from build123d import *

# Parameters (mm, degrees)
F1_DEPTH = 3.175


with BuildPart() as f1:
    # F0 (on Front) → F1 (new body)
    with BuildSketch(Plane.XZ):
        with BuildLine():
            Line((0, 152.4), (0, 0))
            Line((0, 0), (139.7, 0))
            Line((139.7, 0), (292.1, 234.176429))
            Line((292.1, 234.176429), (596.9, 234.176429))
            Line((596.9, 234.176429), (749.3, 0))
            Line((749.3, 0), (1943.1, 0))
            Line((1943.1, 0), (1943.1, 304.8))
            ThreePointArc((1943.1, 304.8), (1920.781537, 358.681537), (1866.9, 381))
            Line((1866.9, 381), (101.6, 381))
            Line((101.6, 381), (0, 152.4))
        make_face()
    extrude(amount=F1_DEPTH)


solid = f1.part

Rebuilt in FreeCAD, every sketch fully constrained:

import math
import FreeCAD as App
import Part
import Sketcher

V = App.Vector
Q = App.Units.Quantity

doc = App.newDocument("Part")
body = doc.addObject("PartDesign::Body", "Body")

# Sketch on XZ plane
sketch1 = body.newObject("Sketcher::SketchObject", "Sketch")
sketch1.AttachmentSupport = (doc.getObject("XZ_Plane"), [""])
sketch1.MapMode = "FlatFace"
sketch1.addGeometry([
    Part.LineSegment(V(0, 152, 0), V(0, 0, 0)),  # 0
    Part.LineSegment(V(0, 0, 0), V(140, 0, 0)),  # 1
    Part.LineSegment(V(140, 0, 0), V(292, 234, 0)),  # 2
    Part.LineSegment(V(292, 234, 0), V(597, 234, 0)),  # 3
    Part.LineSegment(V(597, 234, 0), V(749, 0, 0)),  # 4
    Part.LineSegment(V(749, 0, 0), V(1943, 0, 0)),  # 5
    Part.LineSegment(V(1943, 0, 0), V(1943, 305, 0)),  # 6
    Part.ArcOfCircle(Part.Circle(V(1867, 305, 0), V(0, 0, 1), 76), math.radians(0), math.radians(90)),  # 7
    Part.LineSegment(V(1867, 381, 0), V(102, 381, 0)),  # 8
    Part.LineSegment(V(102, 381, 0), V(0, 152, 0)),  # 9
], False)
sketch1.addConstraint([
    Sketcher.Constraint("Coincident", 0, 2, 1, 1),
    Sketcher.Constraint("Coincident", 1, 2, 2, 1),
    Sketcher.Constraint("Coincident", 2, 2, 3, 1),
    Sketcher.Constraint("Coincident", 3, 2, 4, 1),
    Sketcher.Constraint("Coincident", 4, 2, 5, 1),
    Sketcher.Constraint("Coincident", 5, 2, 6, 1),
    Sketcher.Constraint("Tangent", 6, 2, 7, 1),
    Sketcher.Constraint("Tangent", 7, 2, 8, 1),
    Sketcher.Constraint("Coincident", 8, 2, 9, 1),
    Sketcher.Constraint("Coincident", 9, 2, 0, 1),
    Sketcher.Constraint("Vertical", 0),
    Sketcher.Constraint("Horizontal", 1),
    Sketcher.Constraint("Horizontal", 3),
    Sketcher.Constraint("Horizontal", 5),
    Sketcher.Constraint("Vertical", 6),
    Sketcher.Constraint("Horizontal", 8),
    Sketcher.Constraint("Coincident", 0, 2, -1, 1),
    Sketcher.Constraint("PointOnObject", 4, 2, -1),
    Sketcher.Constraint("Equal", 3, 6),
    Sketcher.Constraint("Equal", 2, 4),
    Sketcher.Constraint("Radius", 7, Q("3 in")),
    Sketcher.Constraint("DistanceX", 3, 1, 3, 2, Q("12 in")),
    Sketcher.Constraint("DistanceX", 5, 1, 5, 2, Q("47 in")),
    Sketcher.Constraint("DistanceY", 0, 2, 0, 1, Q("6 in")),
    Sketcher.Constraint("Distance", 2, Q("11 in")),
    Sketcher.Constraint("DistanceX", 1, 1, 1, 2, Q("5.5 in")),
    Sketcher.Constraint("DistanceX", 8, 2, 8, 1, Q("69.5 in")),
    Sketcher.Constraint("DistanceX", -1, 1, 8, 2, Q("4 in")),
])
pad1 = body.newObject("PartDesign::Pad", "Pad")
pad1.Profile = sketch1
pad1.Length = Q("0.125 in")

doc.recompute()
